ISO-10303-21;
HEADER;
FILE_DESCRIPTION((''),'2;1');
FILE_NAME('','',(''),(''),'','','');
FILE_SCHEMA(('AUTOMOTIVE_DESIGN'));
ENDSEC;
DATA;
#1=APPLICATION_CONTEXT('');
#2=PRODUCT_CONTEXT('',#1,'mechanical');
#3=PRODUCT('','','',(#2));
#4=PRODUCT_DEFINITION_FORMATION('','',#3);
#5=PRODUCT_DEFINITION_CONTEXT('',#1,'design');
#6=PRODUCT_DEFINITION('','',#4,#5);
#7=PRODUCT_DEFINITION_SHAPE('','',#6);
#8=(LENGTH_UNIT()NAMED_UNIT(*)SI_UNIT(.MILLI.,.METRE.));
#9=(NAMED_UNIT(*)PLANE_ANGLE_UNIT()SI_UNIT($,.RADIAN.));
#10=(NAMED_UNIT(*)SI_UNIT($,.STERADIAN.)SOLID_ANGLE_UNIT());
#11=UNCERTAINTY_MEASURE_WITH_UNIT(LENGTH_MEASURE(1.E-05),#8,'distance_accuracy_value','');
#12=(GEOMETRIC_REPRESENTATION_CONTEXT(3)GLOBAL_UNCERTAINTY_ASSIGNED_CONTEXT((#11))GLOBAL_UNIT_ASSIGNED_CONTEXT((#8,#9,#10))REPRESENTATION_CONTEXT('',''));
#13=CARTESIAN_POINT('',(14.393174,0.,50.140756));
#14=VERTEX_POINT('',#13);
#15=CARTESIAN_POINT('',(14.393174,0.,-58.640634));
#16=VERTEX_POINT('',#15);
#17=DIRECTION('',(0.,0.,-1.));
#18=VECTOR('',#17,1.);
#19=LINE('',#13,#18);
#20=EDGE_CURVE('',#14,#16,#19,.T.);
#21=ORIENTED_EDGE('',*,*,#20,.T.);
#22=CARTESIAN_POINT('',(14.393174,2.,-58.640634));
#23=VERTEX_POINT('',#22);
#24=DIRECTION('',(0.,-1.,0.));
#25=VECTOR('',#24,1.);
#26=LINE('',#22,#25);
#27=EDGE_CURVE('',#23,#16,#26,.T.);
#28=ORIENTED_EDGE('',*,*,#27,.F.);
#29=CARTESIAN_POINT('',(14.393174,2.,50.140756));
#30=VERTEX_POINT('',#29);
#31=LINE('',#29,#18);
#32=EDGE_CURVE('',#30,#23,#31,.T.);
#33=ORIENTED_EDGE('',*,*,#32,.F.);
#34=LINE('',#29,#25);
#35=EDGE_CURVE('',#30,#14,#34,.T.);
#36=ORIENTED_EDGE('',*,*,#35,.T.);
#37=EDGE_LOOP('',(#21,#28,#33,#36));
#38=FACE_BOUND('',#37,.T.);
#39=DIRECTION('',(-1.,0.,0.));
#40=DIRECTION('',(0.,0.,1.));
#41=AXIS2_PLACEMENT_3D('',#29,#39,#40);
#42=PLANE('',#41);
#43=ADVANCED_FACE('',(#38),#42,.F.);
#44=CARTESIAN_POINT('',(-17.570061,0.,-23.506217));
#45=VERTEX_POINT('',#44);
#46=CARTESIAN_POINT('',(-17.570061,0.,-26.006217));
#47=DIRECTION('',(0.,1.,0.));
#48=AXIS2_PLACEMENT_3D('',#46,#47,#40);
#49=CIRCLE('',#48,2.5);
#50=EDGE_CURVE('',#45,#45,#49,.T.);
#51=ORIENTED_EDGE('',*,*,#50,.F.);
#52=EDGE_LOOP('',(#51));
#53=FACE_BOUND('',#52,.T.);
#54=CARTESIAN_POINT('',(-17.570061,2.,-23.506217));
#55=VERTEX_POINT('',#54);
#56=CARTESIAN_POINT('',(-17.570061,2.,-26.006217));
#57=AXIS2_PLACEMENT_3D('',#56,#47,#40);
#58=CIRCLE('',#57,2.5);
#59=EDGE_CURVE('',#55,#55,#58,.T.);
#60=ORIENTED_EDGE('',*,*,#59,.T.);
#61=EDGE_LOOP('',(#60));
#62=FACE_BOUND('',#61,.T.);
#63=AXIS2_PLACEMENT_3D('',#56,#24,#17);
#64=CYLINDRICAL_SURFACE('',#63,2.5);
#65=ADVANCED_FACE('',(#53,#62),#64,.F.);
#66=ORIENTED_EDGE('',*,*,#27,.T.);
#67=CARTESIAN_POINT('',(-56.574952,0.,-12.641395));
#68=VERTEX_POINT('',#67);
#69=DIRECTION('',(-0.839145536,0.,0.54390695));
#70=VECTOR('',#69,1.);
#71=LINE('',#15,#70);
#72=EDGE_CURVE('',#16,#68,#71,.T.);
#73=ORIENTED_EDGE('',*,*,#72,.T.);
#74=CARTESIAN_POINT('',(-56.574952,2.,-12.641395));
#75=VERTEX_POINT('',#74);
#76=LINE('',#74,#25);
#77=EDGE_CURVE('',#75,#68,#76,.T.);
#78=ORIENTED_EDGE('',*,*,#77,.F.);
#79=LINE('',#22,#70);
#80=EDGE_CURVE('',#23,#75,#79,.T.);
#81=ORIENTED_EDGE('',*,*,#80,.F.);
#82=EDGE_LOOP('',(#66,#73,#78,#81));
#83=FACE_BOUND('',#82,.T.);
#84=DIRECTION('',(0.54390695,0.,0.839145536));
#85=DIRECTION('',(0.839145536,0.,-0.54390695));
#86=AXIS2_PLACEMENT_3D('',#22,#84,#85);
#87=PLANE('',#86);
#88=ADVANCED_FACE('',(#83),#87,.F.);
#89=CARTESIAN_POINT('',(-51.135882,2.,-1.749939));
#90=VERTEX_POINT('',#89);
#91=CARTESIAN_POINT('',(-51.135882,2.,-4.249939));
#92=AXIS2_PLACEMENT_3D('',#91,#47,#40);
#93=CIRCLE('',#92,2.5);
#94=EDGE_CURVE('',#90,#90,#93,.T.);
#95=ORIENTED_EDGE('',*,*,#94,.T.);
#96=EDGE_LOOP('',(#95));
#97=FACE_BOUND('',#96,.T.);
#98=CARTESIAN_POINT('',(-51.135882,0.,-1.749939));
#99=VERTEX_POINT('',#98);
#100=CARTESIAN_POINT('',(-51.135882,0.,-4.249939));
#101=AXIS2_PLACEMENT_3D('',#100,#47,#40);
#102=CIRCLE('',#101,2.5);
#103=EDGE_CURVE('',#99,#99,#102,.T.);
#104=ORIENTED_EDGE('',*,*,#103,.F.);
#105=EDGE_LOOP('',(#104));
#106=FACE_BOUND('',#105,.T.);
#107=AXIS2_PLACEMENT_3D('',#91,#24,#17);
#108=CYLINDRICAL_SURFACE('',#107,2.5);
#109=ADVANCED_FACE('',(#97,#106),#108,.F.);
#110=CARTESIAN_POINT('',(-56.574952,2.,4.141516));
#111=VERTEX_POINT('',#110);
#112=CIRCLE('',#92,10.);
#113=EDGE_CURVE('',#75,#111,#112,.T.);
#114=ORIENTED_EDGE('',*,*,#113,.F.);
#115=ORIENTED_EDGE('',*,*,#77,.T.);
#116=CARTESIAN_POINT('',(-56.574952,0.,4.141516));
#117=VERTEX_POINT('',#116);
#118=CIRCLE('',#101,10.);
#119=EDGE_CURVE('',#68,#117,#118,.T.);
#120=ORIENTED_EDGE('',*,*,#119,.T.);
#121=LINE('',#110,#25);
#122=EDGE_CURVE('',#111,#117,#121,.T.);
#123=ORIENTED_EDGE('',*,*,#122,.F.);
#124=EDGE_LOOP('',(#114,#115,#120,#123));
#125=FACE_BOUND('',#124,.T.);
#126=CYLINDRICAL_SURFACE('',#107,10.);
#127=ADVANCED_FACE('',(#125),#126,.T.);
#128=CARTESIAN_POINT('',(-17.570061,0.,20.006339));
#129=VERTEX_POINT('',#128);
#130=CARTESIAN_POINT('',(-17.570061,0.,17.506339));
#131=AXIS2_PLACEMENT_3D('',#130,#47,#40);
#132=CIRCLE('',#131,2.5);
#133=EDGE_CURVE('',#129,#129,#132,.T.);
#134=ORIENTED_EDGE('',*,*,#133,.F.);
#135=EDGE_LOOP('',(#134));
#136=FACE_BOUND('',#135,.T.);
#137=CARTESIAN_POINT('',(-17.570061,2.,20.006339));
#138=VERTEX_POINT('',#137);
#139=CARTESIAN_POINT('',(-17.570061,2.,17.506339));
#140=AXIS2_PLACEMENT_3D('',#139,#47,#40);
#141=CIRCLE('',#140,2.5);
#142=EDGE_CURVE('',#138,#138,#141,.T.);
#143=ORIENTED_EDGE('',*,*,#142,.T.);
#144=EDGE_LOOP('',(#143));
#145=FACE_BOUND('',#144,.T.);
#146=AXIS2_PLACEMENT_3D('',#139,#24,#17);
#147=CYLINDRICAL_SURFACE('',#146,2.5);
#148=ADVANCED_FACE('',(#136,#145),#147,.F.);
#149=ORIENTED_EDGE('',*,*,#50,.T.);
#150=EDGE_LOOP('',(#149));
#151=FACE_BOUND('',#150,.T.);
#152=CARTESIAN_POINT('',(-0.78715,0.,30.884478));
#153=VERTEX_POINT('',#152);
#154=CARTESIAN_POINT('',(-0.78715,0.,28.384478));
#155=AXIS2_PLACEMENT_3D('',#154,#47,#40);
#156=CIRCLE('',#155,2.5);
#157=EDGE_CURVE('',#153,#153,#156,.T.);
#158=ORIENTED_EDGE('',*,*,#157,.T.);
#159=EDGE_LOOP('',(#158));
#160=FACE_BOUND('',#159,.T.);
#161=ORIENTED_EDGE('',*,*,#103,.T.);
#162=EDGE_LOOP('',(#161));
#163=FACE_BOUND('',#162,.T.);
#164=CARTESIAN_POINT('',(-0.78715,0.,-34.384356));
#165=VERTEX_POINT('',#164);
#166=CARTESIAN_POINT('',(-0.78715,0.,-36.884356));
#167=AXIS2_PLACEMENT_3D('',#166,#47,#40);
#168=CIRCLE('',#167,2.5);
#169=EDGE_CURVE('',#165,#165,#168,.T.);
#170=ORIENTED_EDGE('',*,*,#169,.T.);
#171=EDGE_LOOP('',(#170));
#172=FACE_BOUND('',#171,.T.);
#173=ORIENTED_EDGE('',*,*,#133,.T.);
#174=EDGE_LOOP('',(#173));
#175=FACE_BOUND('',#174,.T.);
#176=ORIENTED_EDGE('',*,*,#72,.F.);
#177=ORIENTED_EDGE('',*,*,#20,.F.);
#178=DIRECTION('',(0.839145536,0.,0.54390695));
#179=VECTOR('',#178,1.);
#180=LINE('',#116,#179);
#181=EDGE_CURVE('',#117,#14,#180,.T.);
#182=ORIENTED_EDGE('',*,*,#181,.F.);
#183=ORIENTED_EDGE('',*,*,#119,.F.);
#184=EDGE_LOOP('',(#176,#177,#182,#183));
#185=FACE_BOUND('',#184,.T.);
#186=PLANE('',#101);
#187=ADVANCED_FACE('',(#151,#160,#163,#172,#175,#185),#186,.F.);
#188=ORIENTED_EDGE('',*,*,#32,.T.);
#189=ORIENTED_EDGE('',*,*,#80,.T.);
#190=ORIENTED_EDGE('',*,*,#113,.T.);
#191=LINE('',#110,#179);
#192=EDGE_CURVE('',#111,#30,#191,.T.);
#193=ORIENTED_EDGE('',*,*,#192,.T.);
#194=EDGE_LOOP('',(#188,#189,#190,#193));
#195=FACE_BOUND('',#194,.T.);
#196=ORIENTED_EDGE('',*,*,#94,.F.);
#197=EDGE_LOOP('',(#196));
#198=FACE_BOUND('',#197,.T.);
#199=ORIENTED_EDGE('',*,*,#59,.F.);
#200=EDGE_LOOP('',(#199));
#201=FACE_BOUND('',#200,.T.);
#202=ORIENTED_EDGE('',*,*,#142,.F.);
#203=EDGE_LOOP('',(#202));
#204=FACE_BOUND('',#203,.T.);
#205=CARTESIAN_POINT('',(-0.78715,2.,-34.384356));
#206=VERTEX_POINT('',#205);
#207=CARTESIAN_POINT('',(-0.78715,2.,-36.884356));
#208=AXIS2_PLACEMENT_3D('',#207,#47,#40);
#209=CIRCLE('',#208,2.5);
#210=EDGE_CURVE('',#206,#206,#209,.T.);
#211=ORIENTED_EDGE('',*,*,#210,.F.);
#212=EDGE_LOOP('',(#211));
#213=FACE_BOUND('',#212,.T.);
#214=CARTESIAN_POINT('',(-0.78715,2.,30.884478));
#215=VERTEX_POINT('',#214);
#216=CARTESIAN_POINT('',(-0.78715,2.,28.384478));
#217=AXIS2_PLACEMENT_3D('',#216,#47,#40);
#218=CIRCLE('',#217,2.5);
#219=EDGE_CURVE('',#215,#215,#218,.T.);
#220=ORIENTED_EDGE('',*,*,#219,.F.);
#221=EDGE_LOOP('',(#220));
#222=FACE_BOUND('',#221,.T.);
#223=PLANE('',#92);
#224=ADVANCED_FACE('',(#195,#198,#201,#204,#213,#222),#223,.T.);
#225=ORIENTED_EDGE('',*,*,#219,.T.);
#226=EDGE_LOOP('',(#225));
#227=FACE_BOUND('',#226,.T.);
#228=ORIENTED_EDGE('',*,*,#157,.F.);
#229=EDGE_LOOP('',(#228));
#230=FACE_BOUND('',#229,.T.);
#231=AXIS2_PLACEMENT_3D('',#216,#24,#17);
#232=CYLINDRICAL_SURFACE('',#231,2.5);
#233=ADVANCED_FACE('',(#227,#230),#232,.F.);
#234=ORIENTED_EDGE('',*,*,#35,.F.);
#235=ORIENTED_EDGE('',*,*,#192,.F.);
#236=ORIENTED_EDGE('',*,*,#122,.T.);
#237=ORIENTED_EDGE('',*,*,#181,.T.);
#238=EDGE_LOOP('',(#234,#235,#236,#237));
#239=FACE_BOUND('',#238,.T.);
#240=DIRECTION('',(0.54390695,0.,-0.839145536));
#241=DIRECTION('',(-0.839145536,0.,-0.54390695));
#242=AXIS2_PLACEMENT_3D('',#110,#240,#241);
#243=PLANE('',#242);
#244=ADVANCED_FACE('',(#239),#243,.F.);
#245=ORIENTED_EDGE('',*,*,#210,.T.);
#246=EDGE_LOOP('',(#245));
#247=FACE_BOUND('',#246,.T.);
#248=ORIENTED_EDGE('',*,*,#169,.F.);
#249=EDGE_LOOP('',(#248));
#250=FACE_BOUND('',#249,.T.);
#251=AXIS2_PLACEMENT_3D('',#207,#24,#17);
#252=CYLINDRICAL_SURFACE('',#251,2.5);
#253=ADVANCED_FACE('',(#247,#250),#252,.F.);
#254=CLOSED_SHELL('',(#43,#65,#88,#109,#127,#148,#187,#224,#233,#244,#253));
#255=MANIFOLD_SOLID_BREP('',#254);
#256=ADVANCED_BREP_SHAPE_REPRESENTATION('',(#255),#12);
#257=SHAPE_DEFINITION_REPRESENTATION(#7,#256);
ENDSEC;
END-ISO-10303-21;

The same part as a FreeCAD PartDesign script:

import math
import FreeCAD as App
import Part
import Sketcher

V = App.Vector
Q = App.Units.Quantity

doc = App.newDocument("Part")
body = doc.addObject("PartDesign::Body", "Body")

# Sketch on XZ plane
sketch1 = doc.addObject("Sketcher::SketchObject", "Sketch")
body.addObject(sketch1)
sketch1.AttachmentSupport = (doc.XZ_Plane, [""])
sketch1.MapMode = "FlatFace"
sketch1.addGeometry([
    Part.LineSegment(V(14.4, -58.6, 0), V(-56.6, -12.6, 0)),  # 0
    Part.ArcOfCircle(Part.Circle(V(-51.1, -4.2, 0), V(0, 0, 1), 10), math.radians(123), math.radians(237)),  # 1
    Part.LineSegment(V(-56.6, 4.1, 0), V(14.4, 50.1, 0)),  # 2
    Part.LineSegment(V(14.4, 50.1, 0), V(14.4, -58.6, 0)),  # 3
    Part.Circle(V(-51.1, -4.2, 0), V(0, 0, 1), 2.5),  # 4
    Part.Circle(V(-17.6, 17.5, 0), V(0, 0, 1), 2.5),  # 5
    Part.Circle(V(-0.8, 28.4, 0), V(0, 0, 1), 2.5),  # 6
    Part.Circle(V(-17.6, -26, 0), V(0, 0, 1), 2.5),  # 7
    Part.Circle(V(-0.8, -36.9, 0), V(0, 0, 1), 2.5),  # 8
], False)
sketch1.addConstraint([
    Sketcher.Constraint("Tangent", 0, 2, 1, 2),
    Sketcher.Constraint("Tangent", 1, 1, 2, 1),
    Sketcher.Constraint("Coincident", 2, 2, 3, 1),
    Sketcher.Constraint("Coincident", 3, 2, 0, 1),
    Sketcher.Constraint("Vertical", 3),
    Sketcher.Constraint("Coincident", 4, 3, 1, 3),
    Sketcher.Constraint("Equal", 4, 5),
    Sketcher.Constraint("Equal", 5, 6),
    Sketcher.Constraint("Equal", 6, 7),
    Sketcher.Constraint("Equal", 7, 8),
    Sketcher.Constraint("Vertical", 5, 3, 7, 3),
    Sketcher.Constraint("Vertical", 6, 3, 8, 3),
    Sketcher.Constraint("Vertical", 0, 2, 1, 1),
    Sketcher.Constraint("Diameter", 4, Q("5 mm")),
    Sketcher.Constraint("Radius", 1, Q("10 mm")),
    Sketcher.Constraint("Angle", 0, Q("147.05 deg")),
    Sketcher.Constraint("DistanceY", 3, 2, 3, 1, Q("108.78139 mm")),
    Sketcher.Constraint("DistanceX", 0, 2, 8, 3, Q("55.787802 mm")),
    Sketcher.Constraint("DistanceY", 1, 3, -1, 1, Q("4.249939 mm")),
    Sketcher.Constraint("DistanceX", 5, 3, -1, 1, Q("17.570061 mm")),
    Sketcher.Constraint("DistanceY", -1, 1, 5, 3, Q("17.506339 mm")),
    Sketcher.Constraint("DistanceX", 6, 3, -1, 1, Q("0.78715 mm")),
    Sketcher.Constraint("DistanceY", 5, 3, 6, 3, Q("10.878139 mm")),
    Sketcher.Constraint("DistanceY", 8, 3, 7, 3, Q("10.878139 mm")),
    Sketcher.Constraint("DistanceY", 8, 3, 0, 2, Q("24.242962 mm")),
])
pad1 = doc.addObject("PartDesign::Pad", "Pad")
body.addObject(pad1)
pad1.Profile = sketch1
pad1.Length = 2
pad1.Reversed = True

doc.recompute()
